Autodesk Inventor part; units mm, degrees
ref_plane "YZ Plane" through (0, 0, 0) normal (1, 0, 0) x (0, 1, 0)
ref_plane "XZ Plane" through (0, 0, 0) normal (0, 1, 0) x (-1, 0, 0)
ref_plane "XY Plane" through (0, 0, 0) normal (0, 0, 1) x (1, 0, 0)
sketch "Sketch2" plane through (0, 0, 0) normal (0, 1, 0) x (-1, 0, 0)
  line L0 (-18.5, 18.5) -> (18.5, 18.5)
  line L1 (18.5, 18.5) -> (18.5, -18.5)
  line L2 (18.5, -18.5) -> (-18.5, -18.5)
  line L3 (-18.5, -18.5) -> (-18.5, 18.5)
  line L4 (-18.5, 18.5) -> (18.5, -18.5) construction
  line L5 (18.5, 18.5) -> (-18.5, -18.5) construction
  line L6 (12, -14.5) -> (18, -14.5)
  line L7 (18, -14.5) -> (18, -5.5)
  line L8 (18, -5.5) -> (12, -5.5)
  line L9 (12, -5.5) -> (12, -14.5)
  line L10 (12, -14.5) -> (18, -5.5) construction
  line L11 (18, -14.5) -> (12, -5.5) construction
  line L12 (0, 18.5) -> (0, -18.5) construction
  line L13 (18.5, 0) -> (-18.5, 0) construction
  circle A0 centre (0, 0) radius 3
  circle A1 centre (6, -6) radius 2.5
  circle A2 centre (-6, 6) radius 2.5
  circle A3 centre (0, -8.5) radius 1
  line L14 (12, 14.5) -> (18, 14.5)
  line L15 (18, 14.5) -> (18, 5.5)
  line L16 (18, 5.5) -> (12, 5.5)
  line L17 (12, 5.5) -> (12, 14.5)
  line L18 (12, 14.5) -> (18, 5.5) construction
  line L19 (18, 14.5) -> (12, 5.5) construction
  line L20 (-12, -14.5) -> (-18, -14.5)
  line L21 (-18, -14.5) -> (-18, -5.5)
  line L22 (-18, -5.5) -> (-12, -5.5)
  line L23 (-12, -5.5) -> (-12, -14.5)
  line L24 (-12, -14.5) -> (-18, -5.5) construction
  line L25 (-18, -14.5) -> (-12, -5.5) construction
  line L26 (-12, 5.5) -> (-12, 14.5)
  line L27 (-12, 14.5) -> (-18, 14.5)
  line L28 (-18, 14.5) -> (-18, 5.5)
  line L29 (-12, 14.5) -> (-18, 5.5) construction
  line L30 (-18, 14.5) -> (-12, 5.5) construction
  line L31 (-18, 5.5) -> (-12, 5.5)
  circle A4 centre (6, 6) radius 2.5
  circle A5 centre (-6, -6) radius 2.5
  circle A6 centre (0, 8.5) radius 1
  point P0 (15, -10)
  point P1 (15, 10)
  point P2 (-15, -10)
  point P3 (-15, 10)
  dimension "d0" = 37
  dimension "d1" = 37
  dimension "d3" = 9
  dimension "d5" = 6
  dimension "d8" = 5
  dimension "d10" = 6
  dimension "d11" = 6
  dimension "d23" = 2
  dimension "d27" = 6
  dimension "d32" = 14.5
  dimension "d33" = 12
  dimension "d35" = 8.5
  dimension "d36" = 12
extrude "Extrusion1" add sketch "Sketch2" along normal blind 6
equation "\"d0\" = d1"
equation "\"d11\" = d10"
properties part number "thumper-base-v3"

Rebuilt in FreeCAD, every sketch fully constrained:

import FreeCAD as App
import Part
import Sketcher

doc = App.newDocument("Part")
body = doc.addObject("PartDesign::Body", "Body")

# Sketch on XZ plane
sketch1 = body.newObject("Sketcher::SketchObject", "Sketch")
sketch1.AttachmentSupport = (doc.getObject("XZ_Plane"), [""])
sketch1.MapMode = "FlatFace"
sketch1.addGeometry([
    Part.LineSegment(App.Vector(-18.5, 18.5, 0), App.Vector(18.5, 18.5, 0)),  # 0
    Part.LineSegment(App.Vector(18.5, 18.5, 0), App.Vector(18.5, -18.5, 0)),  # 1
    Part.LineSegment(App.Vector(18.5, -18.5, 0), App.Vector(-18.5, -18.5, 0)),  # 2
    Part.LineSegment(App.Vector(-18.5, -18.5, 0), App.Vector(-18.5, 18.5, 0)),  # 3
    Part.LineSegment(App.Vector(12, -5.5, 0), App.Vector(12, -14.5, 0)),  # 4
    Part.LineSegment(App.Vector(12, -14.5, 0), App.Vector(18, -14.5, 0)),  # 5
    Part.LineSegment(App.Vector(18, -14.5, 0), App.Vector(18, -5.5, 0)),  # 6
    Part.LineSegment(App.Vector(18, -5.5, 0), App.Vector(12, -5.5, 0)),  # 7
    Part.Circle(App.Vector(6, -6, 0), App.Vector(0, 0, 1), 2.5),  # 8
    Part.LineSegment(App.Vector(-18, -14.5, 0), App.Vector(-12, -14.5, 0)),  # 9
    Part.LineSegment(App.Vector(-12, -14.5, 0), App.Vector(-12, -5.5, 0)),  # 10
    Part.LineSegment(App.Vector(-12, -5.5, 0), App.Vector(-18, -5.5, 0)),  # 11
    Part.LineSegment(App.Vector(-18, -5.5, 0), App.Vector(-18, -14.5, 0)),  # 12
    Part.Circle(App.Vector(0, -8.5, 0), App.Vector(0, 0, 1), 1),  # 13
    Part.Circle(App.Vector(-6, -6, 0), App.Vector(0, 0, 1), 2.5),  # 14
    Part.Circle(App.Vector(6, 6, 0), App.Vector(0, 0, 1), 2.5),  # 15
    Part.LineSegment(App.Vector(12, 14.5, 0), App.Vector(12, 5.5, 0)),  # 16
    Part.LineSegment(App.Vector(12, 5.5, 0), App.Vector(18, 5.5, 0)),  # 17
    Part.LineSegment(App.Vector(18, 5.5, 0), App.Vector(18, 14.5, 0)),  # 18
    Part.LineSegment(App.Vector(18, 14.5, 0), App.Vector(12, 14.5, 0)),  # 19
    Part.Circle(App.Vector(0, 0, 0), App.Vector(0, 0, 1), 3),  # 20
    Part.Circle(App.Vector(0, 8.5, 0), App.Vector(0, 0, 1), 1),  # 21
    Part.Circle(App.Vector(-6, 6, 0), App.Vector(0, 0, 1), 2.5),  # 22
    Part.LineSegment(App.Vector(-12, 5.5, 0), App.Vector(-12, 14.5, 0)),  # 23
    Part.LineSegment(App.Vector(-12, 14.5, 0), App.Vector(-18, 14.5, 0)),  # 24
    Part.LineSegment(App.Vector(-18, 14.5, 0), App.Vector(-18, 5.5, 0)),  # 25
    Part.LineSegment(App.Vector(-18, 5.5, 0), App.Vector(-12, 5.5, 0)),  # 26
], False)
sketch1.addConstraint([
    Sketcher.Constraint("Coincident", 0, 2, 1, 1),
    Sketcher.Constraint("Coincident", 1, 2, 2, 1),
    Sketcher.Constraint("Coincident", 2, 2, 3, 1),
    Sketcher.Constraint("Coincident", 3, 2, 0, 1),
    Sketcher.Constraint("Coincident", 4, 2, 5, 1),
    Sketcher.Constraint("Coincident", 5, 2, 6, 1),
    Sketcher.Constraint("Coincident", 6, 2, 7, 1),
    Sketcher.Constraint("Coincident", 7, 2, 4, 1),
    Sketcher.Constraint("Coincident", 9, 2, 10, 1),
    Sketcher.Constraint("Coincident", 10, 2, 11, 1),
    Sketcher.Constraint("Coincident", 11, 2, 12, 1),
    Sketcher.Constraint("Coincident", 12, 2, 9, 1),
    Sketcher.Constraint("Coincident", 16, 2, 17, 1),
    Sketcher.Constraint("Coincident", 17, 2, 18, 1),
    Sketcher.Constraint("Coincident", 18, 2, 19, 1),
    Sketcher.Constraint("Coincident", 19, 2, 16, 1),
    Sketcher.Constraint("Coincident", 23, 2, 24, 1),
    Sketcher.Constraint("Coincident", 24, 2, 25, 1),
    Sketcher.Constraint("Coincident", 25, 2, 26, 1),
    Sketcher.Constraint("Coincident", 26, 2, 23, 1),
    Sketcher.Constraint("Horizontal", 0),
    Sketcher.Constraint("Vertical", 1),
    Sketcher.Constraint("Horizontal", 2),
    Sketcher.Constraint("Vertical", 3),
    Sketcher.Constraint("Vertical", 4),
    Sketcher.Constraint("Horizontal", 5),
    Sketcher.Constraint("Vertical", 6),
    Sketcher.Constraint("Horizontal", 7),
    Sketcher.Constraint("Horizontal", 9),
    Sketcher.Constraint("Vertical", 10),
    Sketcher.Constraint("Horizontal", 11),
    Sketcher.Constraint("Vertical", 12),
    Sketcher.Constraint("Vertical", 16),
    Sketcher.Constraint("Horizontal", 17),
    Sketcher.Constraint("Vertical", 18),
    Sketcher.Constraint("Horizontal", 19),
    Sketcher.Constraint("Vertical", 23),
    Sketcher.Constraint("Horizontal", 24),
    Sketcher.Constraint("Vertical", 25),
    Sketcher.Constraint("Horizontal", 26),
    Sketcher.Constraint("Coincident", 20, 3, -1, 1),
    Sketcher.Constraint("Equal", 8, 14),
    Sketcher.Constraint("Equal", 14, 15),
    Sketcher.Constraint("Equal", 13, 21),
    Sketcher.Constraint("Equal", 15, 22),
    Sketcher.Constraint("Symmetric", 14, 3, 15, 3, -1, 1),
    Sketcher.Constraint("Symmetric", 13, 3, 21, 3, -1, 1),
    Sketcher.Constraint("Symmetric", 8, 3, 22, 3, -1, 1),
    Sketcher.Constraint("Symmetric", 0, 2, 2, 2, -1, 1),
    Sketcher.Constraint("Symmetric", 10, 2, 16, 2, -1, 1),
    Sketcher.Constraint("Symmetric", 12, 2, 18, 2, -1, 1),
    Sketcher.Constraint("Symmetric", 4, 2, 23, 2, -1, 1),
    Sketcher.Constraint("Symmetric", 6, 2, 25, 2, -1, 1),
    Sketcher.Constraint("Symmetric", 8, 3, 14, 3, -2),
    Sketcher.Constraint("Symmetric", 4, 2, 9, 2, -2),
    Sketcher.Constraint("Symmetric", 6, 2, 11, 2, -2),
    Sketcher.Constraint("PointOnObject", 13, 3, -2),
    Sketcher.Constraint("Equal", 2, 1),
    Sketcher.Constraint("Diameter", 8, 5.0),
    Sketcher.Constraint("Diameter", 13, 2.0),
    Sketcher.Constraint("Diameter", 20, 6.0),
    Sketcher.Constraint("DistanceX", 0, 1, 0, 2, 37.0),
    Sketcher.Constraint("DistanceX", 5, 1, 5, 2, 6.0),
    Sketcher.Constraint("DistanceY", 4, 2, 4, 1, 9.0),
    Sketcher.Constraint("DistanceX", -1, 1, 8, 3, 6.0),
    Sketcher.Constraint("DistanceY", 8, 3, -1, 1, 6.0),
    Sketcher.Constraint("DistanceX", -1, 1, 4, 2, 12.0),
    Sketcher.Constraint("DistanceY", 4, 2, 13, 3, 6.0),
    Sketcher.Constraint("DistanceY", 13, 3, -1, 1, 8.5),
])
pad1 = body.newObject("PartDesign::Pad", "Pad")
pad1.Profile = sketch1
pad1.Length = 6
pad1.Reversed = True

doc.recompute()
